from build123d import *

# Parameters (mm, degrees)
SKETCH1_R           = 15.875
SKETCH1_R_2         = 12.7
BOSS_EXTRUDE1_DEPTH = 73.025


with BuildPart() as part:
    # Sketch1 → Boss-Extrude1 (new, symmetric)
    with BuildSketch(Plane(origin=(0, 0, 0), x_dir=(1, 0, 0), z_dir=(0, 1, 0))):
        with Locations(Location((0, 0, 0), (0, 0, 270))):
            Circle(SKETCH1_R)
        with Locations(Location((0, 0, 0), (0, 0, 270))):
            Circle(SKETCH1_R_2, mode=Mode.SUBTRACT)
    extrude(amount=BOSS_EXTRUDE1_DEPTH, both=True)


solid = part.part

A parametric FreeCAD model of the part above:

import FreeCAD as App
import Part
import Sketcher
Q = App.Units.Quantity

doc = App.newDocument("Part")
params = doc.addObject("Spreadsheet::Sheet", "Params")
for row, (alias, value) in enumerate([
    ("sketch1_diameter", "1 in"),
    ("sketch1_diameter2", "1.25 in"),
    ("pad1_length", "5.75 in"),
], start=1):
    params.set(f"A{row}", alias)
    params.set(f"B{row}", "=" + value)
    params.setAlias(f"B{row}", alias)

body = doc.addObject("PartDesign::Body", "Body")

# Sketch on XZ plane
sketch1 = body.newObject("Sketcher::SketchObject", "Sketch")
sketch1.AttachmentSupport = (doc.getObject("XZ_Plane"), [""])
sketch1.MapMode = "FlatFace"
sketch1.addGeometry(Part.Circle(App.Vector(0, 0, 0), App.Vector(0, 0, 1), 15.875), False)
sketch1.addGeometry(Part.Circle(App.Vector(0, 0, 0), App.Vector(0, 0, 1), 12.7), False)
sketch1.addConstraint(Sketcher.Constraint("Coincident", 0, 3, -1, 1))
sketch1.addConstraint(Sketcher.Constraint("Coincident", 1, 3, -1, 1))
sketch1.addConstraint(Sketcher.Constraint("Diameter", 1, Q("1 in")))
sketch1.addConstraint(Sketcher.Constraint("Diameter", 0, Q("1.25 in")))
sketch1.setExpression("Constraints[2]", "Params.sketch1_diameter")
sketch1.setExpression("Constraints[3]", "Params.sketch1_diameter2")
pad1 = body.newObject("PartDesign::Pad", "Pad")
pad1.Profile = sketch1
pad1.setExpression("Length", "Params.pad1_length")
pad1.Midplane = True

doc.recompute()
